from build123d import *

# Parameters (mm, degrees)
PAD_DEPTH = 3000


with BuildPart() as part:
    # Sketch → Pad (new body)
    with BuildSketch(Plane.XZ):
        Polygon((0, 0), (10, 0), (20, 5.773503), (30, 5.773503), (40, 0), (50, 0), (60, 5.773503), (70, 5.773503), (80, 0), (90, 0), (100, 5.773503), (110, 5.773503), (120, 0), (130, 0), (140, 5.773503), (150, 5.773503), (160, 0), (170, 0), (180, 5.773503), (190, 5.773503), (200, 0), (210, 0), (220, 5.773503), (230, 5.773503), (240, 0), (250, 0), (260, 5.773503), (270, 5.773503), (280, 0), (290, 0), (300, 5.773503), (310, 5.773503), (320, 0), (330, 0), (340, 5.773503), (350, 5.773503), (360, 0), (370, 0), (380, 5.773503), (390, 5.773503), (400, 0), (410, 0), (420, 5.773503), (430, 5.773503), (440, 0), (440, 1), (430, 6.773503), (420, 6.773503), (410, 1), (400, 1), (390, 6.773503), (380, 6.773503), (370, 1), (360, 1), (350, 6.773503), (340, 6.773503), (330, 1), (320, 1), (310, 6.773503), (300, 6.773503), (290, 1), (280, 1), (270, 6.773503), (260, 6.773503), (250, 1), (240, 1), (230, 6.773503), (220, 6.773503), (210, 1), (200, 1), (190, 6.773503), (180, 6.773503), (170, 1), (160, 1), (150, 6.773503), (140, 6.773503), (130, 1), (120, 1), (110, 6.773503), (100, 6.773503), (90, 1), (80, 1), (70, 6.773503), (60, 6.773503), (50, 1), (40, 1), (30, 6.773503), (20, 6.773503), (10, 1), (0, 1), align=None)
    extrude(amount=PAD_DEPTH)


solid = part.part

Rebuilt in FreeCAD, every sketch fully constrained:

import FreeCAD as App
import Part
import Sketcher
Q = App.Units.Quantity


def add_polygon(sketch, points):
    """Adds a closed chain of lines whose ends are joined by coincident constraints."""
    first, n = sketch.GeometryCount, len(points)
    for a, b in zip(points, points[1:] + points[:1]):
        sketch.addGeometry(Part.LineSegment(App.Vector(*a, 0), App.Vector(*b, 0)), False)
    for i in range(n):
        sketch.addConstraint(Sketcher.Constraint("Coincident", first + i, 2, first + (i + 1) % n, 1))

doc = App.newDocument("Part")
body = doc.addObject("PartDesign::Body", "Body")

# Sketch on XZ plane
sketch1 = body.newObject("Sketcher::SketchObject", "Sketch")
sketch1.AttachmentSupport = (doc.getObject("XZ_Plane"), [""])
sketch1.MapMode = "FlatFace"
add_polygon(sketch1, [(0, 0), (10, 0), (20, 5.773503), (30, 5.773503), (40, 0), (50, 0), (60, 5.773503), (70, 5.773503), (80, 0), (90, 0), (100, 5.773503), (110, 5.773503), (120, 0), (130, 0), (140, 5.773503), (150, 5.773503), (160, 0), (170, 0), (180, 5.773503), (190, 5.773503), (200, 0), (210, 0), (220, 5.773503), (230, 5.773503), (240, 0), (250, 0), (260, 5.773503), (270, 5.773503), (280, 0), (290, 0), (300, 5.773503), (310, 5.773503), (320, 0), (330, 0), (340, 5.773503), (350, 5.773503), (360, 0), (370, 0), (380, 5.773503), (390, 5.773503), (400, 0), (410, 0), (420, 5.773503), (430, 5.773503), (440, 0), (440, 1), (430, 6.773503), (420, 6.773503), (410, 1), (400, 1), (390, 6.773503), (380, 6.773503), (370, 1), (360, 1), (350, 6.773503), (340, 6.773503), (330, 1), (320, 1), (310, 6.773503), (300, 6.773503), (290, 1), (280, 1), (270, 6.773503), (260, 6.773503), (250, 1), (240, 1), (230, 6.773503), (220, 6.773503), (210, 1), (200, 1), (190, 6.773503), (180, 6.773503), (170, 1), (160, 1), (150, 6.773503), (140, 6.773503), (130, 1), (120, 1), (110, 6.773503), (100, 6.773503), (90, 1), (80, 1), (70, 6.773503), (60, 6.773503), (50, 1), (40, 1), (30, 6.773503), (20, 6.773503), (10, 1), (0, 1)])  # lines 0-89
sketch1.addConstraint(Sketcher.Constraint("Horizontal", 0))
sketch1.addConstraint(Sketcher.Constraint("Horizontal", 2))
sketch1.addConstraint(Sketcher.Constraint("Horizontal", 4))
sketch1.addConstraint(Sketcher.Constraint("Horizontal", 6))
sketch1.addConstraint(Sketcher.Constraint("Horizontal", 8))
sketch1.addConstraint(Sketcher.Constraint("Horizontal", 10))
sketch1.addConstraint(Sketcher.Constraint("Horizontal", 12))
sketch1.addConstraint(Sketcher.Constraint("Horizontal", 14))
sketch1.addConstraint(Sketcher.Constraint("Horizontal", 16))
sketch1.addConstraint(Sketcher.Constraint("Horizontal", 18))
sketch1.addConstraint(Sketcher.Constraint("Horizontal", 20))
sketch1.addConstraint(Sketcher.Constraint("Horizontal", 22))
sketch1.addConstraint(Sketcher.Constraint("Horizontal", 24))
sketch1.addConstraint(Sketcher.Constraint("Horizontal", 26))
sketch1.addConstraint(Sketcher.Constraint("Horizontal", 28))
sketch1.addConstraint(Sketcher.Constraint("Horizontal", 30))
sketch1.addConstraint(Sketcher.Constraint("Horizontal", 32))
sketch1.addConstraint(Sketcher.Constraint("Horizontal", 34))
sketch1.addConstraint(Sketcher.Constraint("Horizontal", 36))
sketch1.addConstraint(Sketcher.Constraint("Horizontal", 38))
sketch1.addConstraint(Sketcher.Constraint("Horizontal", 40))
sketch1.addConstraint(Sketcher.Constraint("Horizontal", 42))
sketch1.addConstraint(Sketcher.Constraint("Vertical", 44))
sketch1.addConstraint(Sketcher.Constraint("Horizontal", 46))
sketch1.addConstraint(Sketcher.Constraint("Horizontal", 48))
sketch1.addConstraint(Sketcher.Constraint("Horizontal", 50))
sketch1.addConstraint(Sketcher.Constraint("Horizontal", 52))
sketch1.addConstraint(Sketcher.Constraint("Horizontal", 54))
sketch1.addConstraint(Sketcher.Constraint("Horizontal", 56))
sketch1.addConstraint(Sketcher.Constraint("Horizontal", 58))
sketch1.addConstraint(Sketcher.Constraint("Horizontal", 60))
sketch1.addConstraint(Sketcher.Constraint("Horizontal", 62))
sketch1.addConstraint(Sketcher.Constraint("Horizontal", 64))
sketch1.addConstraint(Sketcher.Constraint("Horizontal", 66))
sketch1.addConstraint(Sketcher.Constraint("Horizontal", 68))
sketch1.addConstraint(Sketcher.Constraint("Horizontal", 70))
sketch1.addConstraint(Sketcher.Constraint("Horizontal", 72))
sketch1.addConstraint(Sketcher.Constraint("Horizontal", 74))
sketch1.addConstraint(Sketcher.Constraint("Horizontal", 76))
sketch1.addConstraint(Sketcher.Constraint("Horizontal", 78))
sketch1.addConstraint(Sketcher.Constraint("Horizontal", 80))
sketch1.addConstraint(Sketcher.Constraint("Horizontal", 82))
sketch1.addConstraint(Sketcher.Constraint("Horizontal", 84))
sketch1.addConstraint(Sketcher.Constraint("Horizontal", 86))
sketch1.addConstraint(Sketcher.Constraint("Horizontal", 88))
sketch1.addConstraint(Sketcher.Constraint("Vertical", 89))
sketch1.addConstraint(Sketcher.Constraint("Coincident", 89, 2, -1, 1))
sketch1.addConstraint(Sketcher.Constraint("PointOnObject", 3, 2, -1))
sketch1.addConstraint(Sketcher.Constraint("PointOnObject", 7, 2, -1))
sketch1.addConstraint(Sketcher.Constraint("PointOnObject", 11, 2, -1))
sketch1.addConstraint(Sketcher.Constraint("PointOnObject", 15, 2, -1))
sketch1.addConstraint(Sketcher.Constraint("PointOnObject", 19, 2, -1))
sketch1.addConstraint(Sketcher.Constraint("PointOnObject", 23, 2, -1))
sketch1.addConstraint(Sketcher.Constraint("PointOnObject", 27, 2, -1))
sketch1.addConstraint(Sketcher.Constraint("PointOnObject", 31, 2, -1))
sketch1.addConstraint(Sketcher.Constraint("PointOnObject", 35, 2, -1))
sketch1.addConstraint(Sketcher.Constraint("PointOnObject", 39, 2, -1))
sketch1.addConstraint(Sketcher.Constraint("PointOnObject", 43, 2, -1))
sketch1.addConstraint(Sketcher.Constraint("Parallel", 1, 5))
sketch1.addConstraint(Sketcher.Constraint("Parallel", 3, 7))
sketch1.addConstraint(Sketcher.Constraint("Parallel", 5, 9))
sketch1.addConstraint(Sketcher.Constraint("Parallel", 7, 11))
sketch1.addConstraint(Sketcher.Constraint("Parallel", 9, 13))
sketch1.addConstraint(Sketcher.Constraint("Parallel", 11, 15))
sketch1.addConstraint(Sketcher.Constraint("Parallel", 13, 17))
sketch1.addConstraint(Sketcher.Constraint("Parallel", 15, 19))
sketch1.addConstraint(Sketcher.Constraint("Parallel", 17, 21))
sketch1.addConstraint(Sketcher.Constraint("Parallel", 19, 23))
sketch1.addConstraint(Sketcher.Constraint("Parallel", 21, 25))
sketch1.addConstraint(Sketcher.Constraint("Parallel", 23, 27))
sketch1.addConstraint(Sketcher.Constraint("Parallel", 25, 29))
sketch1.addConstraint(Sketcher.Constraint("Parallel", 27, 31))
sketch1.addConstraint(Sketcher.Constraint("Parallel", 29, 33))
sketch1.addConstraint(Sketcher.Constraint("Parallel", 31, 35))
sketch1.addConstraint(Sketcher.Constraint("Parallel", 33, 37))
sketch1.addConstraint(Sketcher.Constraint("Parallel", 35, 39))
sketch1.addConstraint(Sketcher.Constraint("Parallel", 37, 41))
sketch1.addConstraint(Sketcher.Constraint("Parallel", 39, 43))
sketch1.addConstraint(Sketcher.Constraint("Parallel", 43, 45))
sketch1.addConstraint(Sketcher.Constraint("Parallel", 41, 47))
sketch1.addConstraint(Sketcher.Constraint("Parallel", 45, 49))
sketch1.addConstraint(Sketcher.Constraint("Parallel", 47, 51))
sketch1.addConstraint(Sketcher.Constraint("Parallel", 49, 53))
sketch1.addConstraint(Sketcher.Constraint("Parallel", 51, 55))
sketch1.addConstraint(Sketcher.Constraint("Parallel", 53, 57))
sketch1.addConstraint(Sketcher.Constraint("Parallel", 55, 59))
sketch1.addConstraint(Sketcher.Constraint("Parallel", 57, 61))
sketch1.addConstraint(Sketcher.Constraint("Parallel", 59, 63))
sketch1.addConstraint(Sketcher.Constraint("Parallel", 61, 65))
sketch1.addConstraint(Sketcher.Constraint("Parallel", 63, 67))
sketch1.addConstraint(Sketcher.Constraint("Parallel", 65, 69))
sketch1.addConstraint(Sketcher.Constraint("Parallel", 67, 71))
sketch1.addConstraint(Sketcher.Constraint("Parallel", 69, 73))
sketch1.addConstraint(Sketcher.Constraint("Parallel", 71, 75))
sketch1.addConstraint(Sketcher.Constraint("Parallel", 73, 77))
sketch1.addConstraint(Sketcher.Constraint("Parallel", 75, 79))
sketch1.addConstraint(Sketcher.Constraint("Parallel", 77, 81))
sketch1.addConstraint(Sketcher.Constraint("Parallel", 79, 83))
sketch1.addConstraint(Sketcher.Constraint("Parallel", 81, 85))
sketch1.addConstraint(Sketcher.Constraint("Parallel", 83, 87))
sketch1.addConstraint(Sketcher.Constraint("Horizontal", 2, 2, 5, 2))
sketch1.addConstraint(Sketcher.Constraint("Horizontal", 6, 2, 9, 2))
sketch1.addConstraint(Sketcher.Constraint("Horizontal", 10, 2, 13, 2))
sketch1.addConstraint(Sketcher.Constraint("Horizontal", 14, 2, 17, 2))
sketch1.addConstraint(Sketcher.Constraint("Horizontal", 18, 2, 21, 2))
sketch1.addConstraint(Sketcher.Constraint("Horizontal", 22, 2, 25, 2))
sketch1.addConstraint(Sketcher.Constraint("Horizontal", 26, 2, 29, 2))
sketch1.addConstraint(Sketcher.Constraint("Horizontal", 30, 2, 33, 2))
sketch1.addConstraint(Sketcher.Constraint("Horizontal", 34, 2, 37, 2))
sketch1.addConstraint(Sketcher.Constraint("Horizontal", 38, 2, 41, 2))
sketch1.addConstraint(Sketcher.Constraint("Horizontal", 44, 2, 47, 2))
sketch1.addConstraint(Sketcher.Constraint("Horizontal", 46, 2, 49, 2))
sketch1.addConstraint(Sketcher.Constraint("Horizontal", 48, 2, 51, 2))
sketch1.addConstraint(Sketcher.Constraint("Horizontal", 50, 2, 53, 2))
sketch1.addConstraint(Sketcher.Constraint("Horizontal", 52, 2, 55, 2))
sketch1.addConstraint(Sketcher.Constraint("Horizontal", 54, 2, 57, 2))
sketch1.addConstraint(Sketcher.Constraint("Horizontal", 56, 2, 59, 2))
sketch1.addConstraint(Sketcher.Constraint("Horizontal", 58, 2, 61, 2))
sketch1.addConstraint(Sketcher.Constraint("Horizontal", 60, 2, 63, 2))
sketch1.addConstraint(Sketcher.Constraint("Horizontal", 62, 2, 65, 2))
sketch1.addConstraint(Sketcher.Constraint("Horizontal", 64, 2, 67, 2))
sketch1.addConstraint(Sketcher.Constraint("Horizontal", 66, 2, 69, 2))
sketch1.addConstraint(Sketcher.Constraint("Horizontal", 68, 2, 71, 2))
sketch1.addConstraint(Sketcher.Constraint("Horizontal", 70, 2, 73, 2))
sketch1.addConstraint(Sketcher.Constraint("Horizontal", 72, 2, 75, 2))
sketch1.addConstraint(Sketcher.Constraint("Horizontal", 74, 2, 77, 2))
sketch1.addConstraint(Sketcher.Constraint("Horizontal", 76, 2, 79, 2))
sketch1.addConstraint(Sketcher.Constraint("Horizontal", 78, 2, 81, 2))
sketch1.addConstraint(Sketcher.Constraint("Horizontal", 80, 2, 83, 2))
sketch1.addConstraint(Sketcher.Constraint("Horizontal", 82, 2, 85, 2))
sketch1.addConstraint(Sketcher.Constraint("Horizontal", 84, 2, 87, 2))
sketch1.addConstraint(Sketcher.Constraint("Vertical", 42, 2, 45, 2))
sketch1.addConstraint(Sketcher.Constraint("Vertical", 41, 2, 46, 2))
sketch1.addConstraint(Sketcher.Constraint("Vertical", 39, 2, 48, 2))
sketch1.addConstraint(Sketcher.Constraint("Vertical", 37, 2, 50, 2))
sketch1.addConstraint(Sketcher.Constraint("Vertical", 35, 2, 52, 2))
sketch1.addConstraint(Sketcher.Constraint("Vertical", 33, 2, 54, 2))
sketch1.addConstraint(Sketcher.Constraint("Vertical", 31, 2, 56, 2))
sketch1.addConstraint(Sketcher.Constraint("Vertical", 29, 2, 58, 2))
sketch1.addConstraint(Sketcher.Constraint("Vertical", 27, 2, 60, 2))
sketch1.addConstraint(Sketcher.Constraint("Vertical", 25, 2, 62, 2))
sketch1.addConstraint(Sketcher.Constraint("Vertical", 23, 2, 64, 2))
sketch1.addConstraint(Sketcher.Constraint("Vertical", 21, 2, 66, 2))
sketch1.addConstraint(Sketcher.Constraint("Vertical", 19, 2, 68, 2))
sketch1.addConstraint(Sketcher.Constraint("Vertical", 17, 2, 70, 2))
sketch1.addConstraint(Sketcher.Constraint("Vertical", 15, 2, 72, 2))
sketch1.addConstraint(Sketcher.Constraint("Vertical", 13, 2, 74, 2))
sketch1.addConstraint(Sketcher.Constraint("Vertical", 11, 2, 76, 2))
sketch1.addConstraint(Sketcher.Constraint("Vertical", 9, 2, 78, 2))
sketch1.addConstraint(Sketcher.Constraint("Vertical", 7, 2, 80, 2))
sketch1.addConstraint(Sketcher.Constraint("Vertical", 5, 2, 82, 2))
sketch1.addConstraint(Sketcher.Constraint("Vertical", 3, 2, 84, 2))
sketch1.addConstraint(Sketcher.Constraint("Vertical", 1, 2, 86, 2))
sketch1.addConstraint(Sketcher.Constraint("Equal", 0, 2))
sketch1.addConstraint(Sketcher.Constraint("Equal", 2, 4))
sketch1.addConstraint(Sketcher.Constraint("Equal", 4, 6))
sketch1.addConstraint(Sketcher.Constraint("Equal", 6, 8))
sketch1.addConstraint(Sketcher.Constraint("Equal", 8, 10))
sketch1.addConstraint(Sketcher.Constraint("Equal", 10, 12))
sketch1.addConstraint(Sketcher.Constraint("Equal", 12, 14))
sketch1.addConstraint(Sketcher.Constraint("Equal", 14, 16))
sketch1.addConstraint(Sketcher.Constraint("Equal", 16, 18))
sketch1.addConstraint(Sketcher.Constraint("Equal", 18, 20))
sketch1.addConstraint(Sketcher.Constraint("Equal", 20, 22))
sketch1.addConstraint(Sketcher.Constraint("Equal", 22, 24))
sketch1.addConstraint(Sketcher.Constraint("Equal", 24, 26))
sketch1.addConstraint(Sketcher.Constraint("Equal", 26, 28))
sketch1.addConstraint(Sketcher.Constraint("Equal", 28, 30))
sketch1.addConstraint(Sketcher.Constraint("Equal", 30, 32))
sketch1.addConstraint(Sketcher.Constraint("Equal", 32, 34))
sketch1.addConstraint(Sketcher.Constraint("Equal", 34, 36))
sketch1.addConstraint(Sketcher.Constraint("Equal", 36, 38))
sketch1.addConstraint(Sketcher.Constraint("Equal", 38, 40))
sketch1.addConstraint(Sketcher.Constraint("Equal", 40, 42))
sketch1.addConstraint(Sketcher.Constraint("Equal", 1, 3))
sketch1.addConstraint(Sketcher.Constraint("DistanceX", 0, 1, 0, 2, 10.0))
sketch1.addConstraint(Sketcher.Constraint("DistanceY", 44, 1, 44, 2, 1.0))
sketch1.addConstraint(Sketcher.Constraint("Angle", 1, Q("30.000001 deg")))
sketch1.addConstraint(Sketcher.Constraint("DistanceX", -1, 1, 1, 2, 20.0))
pad1 = body.newObject("PartDesign::Pad", "Pad")
pad1.Profile = sketch1
pad1.Length = 3000

doc.recompute()
